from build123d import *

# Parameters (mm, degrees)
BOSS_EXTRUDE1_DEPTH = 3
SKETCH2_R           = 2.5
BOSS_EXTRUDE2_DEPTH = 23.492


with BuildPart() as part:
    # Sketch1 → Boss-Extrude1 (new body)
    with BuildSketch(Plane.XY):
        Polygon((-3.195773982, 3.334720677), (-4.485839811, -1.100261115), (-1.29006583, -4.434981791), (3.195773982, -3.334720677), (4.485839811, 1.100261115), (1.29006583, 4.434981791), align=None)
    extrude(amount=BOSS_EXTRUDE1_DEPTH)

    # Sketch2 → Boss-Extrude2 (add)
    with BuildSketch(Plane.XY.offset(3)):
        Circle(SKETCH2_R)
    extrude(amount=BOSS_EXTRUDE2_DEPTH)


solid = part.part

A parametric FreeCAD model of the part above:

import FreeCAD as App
import Part
import Sketcher
from FreeCAD import Vector


def add_polygon(sketch, points):
    """Adds a closed chain of lines whose ends are joined by coincident constraints."""
    first, n = sketch.GeometryCount, len(points)
    for a, b in zip(points, points[1:] + points[:1]):
        sketch.addGeometry(Part.LineSegment(App.Vector(*a, 0), App.Vector(*b, 0)), False)
    for i in range(n):
        sketch.addConstraint(Sketcher.Constraint("Coincident", first + i, 2, first + (i + 1) % n, 1))

doc = App.newDocument("Part")
body = doc.addObject("PartDesign::Body", "Body")

# Sketch on XY plane
sketch1 = doc.addObject("Sketcher::SketchObject", "Sketch")
body.addObject(sketch1)
sketch1.AttachmentSupport = (doc.XY_Plane, [""])
sketch1.MapMode = "FlatFace"
add_polygon(sketch1, [(-3.2, 3.3), (-4.5, -1.1), (-1.3, -4.4), (3.2, -3.3), (4.5, 1.1), (1.3, 4.4)])  # lines 0-5
sketch1.addConstraint([
    Sketcher.Constraint("Symmetric", 0, 2, 3, 2, -1, 1),
    Sketcher.Constraint("Symmetric", 1, 2, 4, 2, -1, 1),
    Sketcher.Constraint("Symmetric", 2, 2, 5, 2, -1, 1),
    Sketcher.Constraint("Equal", 0, 1),
    Sketcher.Constraint("Equal", 1, 2),
    Sketcher.Constraint("DistanceX", 0, 2, -1, 1, 4.48584),
    Sketcher.Constraint("DistanceY", 0, 2, -1, 1, 1.100261),
    Sketcher.Constraint("DistanceY", 1, 2, -1, 1, 4.434982),
    Sketcher.Constraint("DistanceY", 2, 2, -1, 1, 3.334721),
])
pad1 = doc.addObject("PartDesign::Pad", "Pad")
body.addObject(pad1)
pad1.Profile = sketch1
pad1.Length = 3

# Sketch on XY plane
sketch2 = doc.addObject("Sketcher::SketchObject", "Sketch001")
body.addObject(sketch2)
sketch2.AttachmentSupport = (doc.XY_Plane, [""])
sketch2.MapMode = "FlatFace"
sketch2.AttachmentOffset = App.Placement(Vector(0, 0, 3), App.Rotation())
sketch2.addGeometry(Part.Circle(Vector(0, 0, 0), Vector(0, 0, 1), 2.5), False)
sketch2.addConstraint([
    Sketcher.Constraint("Coincident", 0, 3, -1, 1),
    Sketcher.Constraint("Diameter", 0, 5.0),
])
pad2 = doc.addObject("PartDesign::Pad", "Pad001")
body.addObject(pad2)
pad2.Profile = sketch2
pad2.Length = 23.492

doc.recompute()
